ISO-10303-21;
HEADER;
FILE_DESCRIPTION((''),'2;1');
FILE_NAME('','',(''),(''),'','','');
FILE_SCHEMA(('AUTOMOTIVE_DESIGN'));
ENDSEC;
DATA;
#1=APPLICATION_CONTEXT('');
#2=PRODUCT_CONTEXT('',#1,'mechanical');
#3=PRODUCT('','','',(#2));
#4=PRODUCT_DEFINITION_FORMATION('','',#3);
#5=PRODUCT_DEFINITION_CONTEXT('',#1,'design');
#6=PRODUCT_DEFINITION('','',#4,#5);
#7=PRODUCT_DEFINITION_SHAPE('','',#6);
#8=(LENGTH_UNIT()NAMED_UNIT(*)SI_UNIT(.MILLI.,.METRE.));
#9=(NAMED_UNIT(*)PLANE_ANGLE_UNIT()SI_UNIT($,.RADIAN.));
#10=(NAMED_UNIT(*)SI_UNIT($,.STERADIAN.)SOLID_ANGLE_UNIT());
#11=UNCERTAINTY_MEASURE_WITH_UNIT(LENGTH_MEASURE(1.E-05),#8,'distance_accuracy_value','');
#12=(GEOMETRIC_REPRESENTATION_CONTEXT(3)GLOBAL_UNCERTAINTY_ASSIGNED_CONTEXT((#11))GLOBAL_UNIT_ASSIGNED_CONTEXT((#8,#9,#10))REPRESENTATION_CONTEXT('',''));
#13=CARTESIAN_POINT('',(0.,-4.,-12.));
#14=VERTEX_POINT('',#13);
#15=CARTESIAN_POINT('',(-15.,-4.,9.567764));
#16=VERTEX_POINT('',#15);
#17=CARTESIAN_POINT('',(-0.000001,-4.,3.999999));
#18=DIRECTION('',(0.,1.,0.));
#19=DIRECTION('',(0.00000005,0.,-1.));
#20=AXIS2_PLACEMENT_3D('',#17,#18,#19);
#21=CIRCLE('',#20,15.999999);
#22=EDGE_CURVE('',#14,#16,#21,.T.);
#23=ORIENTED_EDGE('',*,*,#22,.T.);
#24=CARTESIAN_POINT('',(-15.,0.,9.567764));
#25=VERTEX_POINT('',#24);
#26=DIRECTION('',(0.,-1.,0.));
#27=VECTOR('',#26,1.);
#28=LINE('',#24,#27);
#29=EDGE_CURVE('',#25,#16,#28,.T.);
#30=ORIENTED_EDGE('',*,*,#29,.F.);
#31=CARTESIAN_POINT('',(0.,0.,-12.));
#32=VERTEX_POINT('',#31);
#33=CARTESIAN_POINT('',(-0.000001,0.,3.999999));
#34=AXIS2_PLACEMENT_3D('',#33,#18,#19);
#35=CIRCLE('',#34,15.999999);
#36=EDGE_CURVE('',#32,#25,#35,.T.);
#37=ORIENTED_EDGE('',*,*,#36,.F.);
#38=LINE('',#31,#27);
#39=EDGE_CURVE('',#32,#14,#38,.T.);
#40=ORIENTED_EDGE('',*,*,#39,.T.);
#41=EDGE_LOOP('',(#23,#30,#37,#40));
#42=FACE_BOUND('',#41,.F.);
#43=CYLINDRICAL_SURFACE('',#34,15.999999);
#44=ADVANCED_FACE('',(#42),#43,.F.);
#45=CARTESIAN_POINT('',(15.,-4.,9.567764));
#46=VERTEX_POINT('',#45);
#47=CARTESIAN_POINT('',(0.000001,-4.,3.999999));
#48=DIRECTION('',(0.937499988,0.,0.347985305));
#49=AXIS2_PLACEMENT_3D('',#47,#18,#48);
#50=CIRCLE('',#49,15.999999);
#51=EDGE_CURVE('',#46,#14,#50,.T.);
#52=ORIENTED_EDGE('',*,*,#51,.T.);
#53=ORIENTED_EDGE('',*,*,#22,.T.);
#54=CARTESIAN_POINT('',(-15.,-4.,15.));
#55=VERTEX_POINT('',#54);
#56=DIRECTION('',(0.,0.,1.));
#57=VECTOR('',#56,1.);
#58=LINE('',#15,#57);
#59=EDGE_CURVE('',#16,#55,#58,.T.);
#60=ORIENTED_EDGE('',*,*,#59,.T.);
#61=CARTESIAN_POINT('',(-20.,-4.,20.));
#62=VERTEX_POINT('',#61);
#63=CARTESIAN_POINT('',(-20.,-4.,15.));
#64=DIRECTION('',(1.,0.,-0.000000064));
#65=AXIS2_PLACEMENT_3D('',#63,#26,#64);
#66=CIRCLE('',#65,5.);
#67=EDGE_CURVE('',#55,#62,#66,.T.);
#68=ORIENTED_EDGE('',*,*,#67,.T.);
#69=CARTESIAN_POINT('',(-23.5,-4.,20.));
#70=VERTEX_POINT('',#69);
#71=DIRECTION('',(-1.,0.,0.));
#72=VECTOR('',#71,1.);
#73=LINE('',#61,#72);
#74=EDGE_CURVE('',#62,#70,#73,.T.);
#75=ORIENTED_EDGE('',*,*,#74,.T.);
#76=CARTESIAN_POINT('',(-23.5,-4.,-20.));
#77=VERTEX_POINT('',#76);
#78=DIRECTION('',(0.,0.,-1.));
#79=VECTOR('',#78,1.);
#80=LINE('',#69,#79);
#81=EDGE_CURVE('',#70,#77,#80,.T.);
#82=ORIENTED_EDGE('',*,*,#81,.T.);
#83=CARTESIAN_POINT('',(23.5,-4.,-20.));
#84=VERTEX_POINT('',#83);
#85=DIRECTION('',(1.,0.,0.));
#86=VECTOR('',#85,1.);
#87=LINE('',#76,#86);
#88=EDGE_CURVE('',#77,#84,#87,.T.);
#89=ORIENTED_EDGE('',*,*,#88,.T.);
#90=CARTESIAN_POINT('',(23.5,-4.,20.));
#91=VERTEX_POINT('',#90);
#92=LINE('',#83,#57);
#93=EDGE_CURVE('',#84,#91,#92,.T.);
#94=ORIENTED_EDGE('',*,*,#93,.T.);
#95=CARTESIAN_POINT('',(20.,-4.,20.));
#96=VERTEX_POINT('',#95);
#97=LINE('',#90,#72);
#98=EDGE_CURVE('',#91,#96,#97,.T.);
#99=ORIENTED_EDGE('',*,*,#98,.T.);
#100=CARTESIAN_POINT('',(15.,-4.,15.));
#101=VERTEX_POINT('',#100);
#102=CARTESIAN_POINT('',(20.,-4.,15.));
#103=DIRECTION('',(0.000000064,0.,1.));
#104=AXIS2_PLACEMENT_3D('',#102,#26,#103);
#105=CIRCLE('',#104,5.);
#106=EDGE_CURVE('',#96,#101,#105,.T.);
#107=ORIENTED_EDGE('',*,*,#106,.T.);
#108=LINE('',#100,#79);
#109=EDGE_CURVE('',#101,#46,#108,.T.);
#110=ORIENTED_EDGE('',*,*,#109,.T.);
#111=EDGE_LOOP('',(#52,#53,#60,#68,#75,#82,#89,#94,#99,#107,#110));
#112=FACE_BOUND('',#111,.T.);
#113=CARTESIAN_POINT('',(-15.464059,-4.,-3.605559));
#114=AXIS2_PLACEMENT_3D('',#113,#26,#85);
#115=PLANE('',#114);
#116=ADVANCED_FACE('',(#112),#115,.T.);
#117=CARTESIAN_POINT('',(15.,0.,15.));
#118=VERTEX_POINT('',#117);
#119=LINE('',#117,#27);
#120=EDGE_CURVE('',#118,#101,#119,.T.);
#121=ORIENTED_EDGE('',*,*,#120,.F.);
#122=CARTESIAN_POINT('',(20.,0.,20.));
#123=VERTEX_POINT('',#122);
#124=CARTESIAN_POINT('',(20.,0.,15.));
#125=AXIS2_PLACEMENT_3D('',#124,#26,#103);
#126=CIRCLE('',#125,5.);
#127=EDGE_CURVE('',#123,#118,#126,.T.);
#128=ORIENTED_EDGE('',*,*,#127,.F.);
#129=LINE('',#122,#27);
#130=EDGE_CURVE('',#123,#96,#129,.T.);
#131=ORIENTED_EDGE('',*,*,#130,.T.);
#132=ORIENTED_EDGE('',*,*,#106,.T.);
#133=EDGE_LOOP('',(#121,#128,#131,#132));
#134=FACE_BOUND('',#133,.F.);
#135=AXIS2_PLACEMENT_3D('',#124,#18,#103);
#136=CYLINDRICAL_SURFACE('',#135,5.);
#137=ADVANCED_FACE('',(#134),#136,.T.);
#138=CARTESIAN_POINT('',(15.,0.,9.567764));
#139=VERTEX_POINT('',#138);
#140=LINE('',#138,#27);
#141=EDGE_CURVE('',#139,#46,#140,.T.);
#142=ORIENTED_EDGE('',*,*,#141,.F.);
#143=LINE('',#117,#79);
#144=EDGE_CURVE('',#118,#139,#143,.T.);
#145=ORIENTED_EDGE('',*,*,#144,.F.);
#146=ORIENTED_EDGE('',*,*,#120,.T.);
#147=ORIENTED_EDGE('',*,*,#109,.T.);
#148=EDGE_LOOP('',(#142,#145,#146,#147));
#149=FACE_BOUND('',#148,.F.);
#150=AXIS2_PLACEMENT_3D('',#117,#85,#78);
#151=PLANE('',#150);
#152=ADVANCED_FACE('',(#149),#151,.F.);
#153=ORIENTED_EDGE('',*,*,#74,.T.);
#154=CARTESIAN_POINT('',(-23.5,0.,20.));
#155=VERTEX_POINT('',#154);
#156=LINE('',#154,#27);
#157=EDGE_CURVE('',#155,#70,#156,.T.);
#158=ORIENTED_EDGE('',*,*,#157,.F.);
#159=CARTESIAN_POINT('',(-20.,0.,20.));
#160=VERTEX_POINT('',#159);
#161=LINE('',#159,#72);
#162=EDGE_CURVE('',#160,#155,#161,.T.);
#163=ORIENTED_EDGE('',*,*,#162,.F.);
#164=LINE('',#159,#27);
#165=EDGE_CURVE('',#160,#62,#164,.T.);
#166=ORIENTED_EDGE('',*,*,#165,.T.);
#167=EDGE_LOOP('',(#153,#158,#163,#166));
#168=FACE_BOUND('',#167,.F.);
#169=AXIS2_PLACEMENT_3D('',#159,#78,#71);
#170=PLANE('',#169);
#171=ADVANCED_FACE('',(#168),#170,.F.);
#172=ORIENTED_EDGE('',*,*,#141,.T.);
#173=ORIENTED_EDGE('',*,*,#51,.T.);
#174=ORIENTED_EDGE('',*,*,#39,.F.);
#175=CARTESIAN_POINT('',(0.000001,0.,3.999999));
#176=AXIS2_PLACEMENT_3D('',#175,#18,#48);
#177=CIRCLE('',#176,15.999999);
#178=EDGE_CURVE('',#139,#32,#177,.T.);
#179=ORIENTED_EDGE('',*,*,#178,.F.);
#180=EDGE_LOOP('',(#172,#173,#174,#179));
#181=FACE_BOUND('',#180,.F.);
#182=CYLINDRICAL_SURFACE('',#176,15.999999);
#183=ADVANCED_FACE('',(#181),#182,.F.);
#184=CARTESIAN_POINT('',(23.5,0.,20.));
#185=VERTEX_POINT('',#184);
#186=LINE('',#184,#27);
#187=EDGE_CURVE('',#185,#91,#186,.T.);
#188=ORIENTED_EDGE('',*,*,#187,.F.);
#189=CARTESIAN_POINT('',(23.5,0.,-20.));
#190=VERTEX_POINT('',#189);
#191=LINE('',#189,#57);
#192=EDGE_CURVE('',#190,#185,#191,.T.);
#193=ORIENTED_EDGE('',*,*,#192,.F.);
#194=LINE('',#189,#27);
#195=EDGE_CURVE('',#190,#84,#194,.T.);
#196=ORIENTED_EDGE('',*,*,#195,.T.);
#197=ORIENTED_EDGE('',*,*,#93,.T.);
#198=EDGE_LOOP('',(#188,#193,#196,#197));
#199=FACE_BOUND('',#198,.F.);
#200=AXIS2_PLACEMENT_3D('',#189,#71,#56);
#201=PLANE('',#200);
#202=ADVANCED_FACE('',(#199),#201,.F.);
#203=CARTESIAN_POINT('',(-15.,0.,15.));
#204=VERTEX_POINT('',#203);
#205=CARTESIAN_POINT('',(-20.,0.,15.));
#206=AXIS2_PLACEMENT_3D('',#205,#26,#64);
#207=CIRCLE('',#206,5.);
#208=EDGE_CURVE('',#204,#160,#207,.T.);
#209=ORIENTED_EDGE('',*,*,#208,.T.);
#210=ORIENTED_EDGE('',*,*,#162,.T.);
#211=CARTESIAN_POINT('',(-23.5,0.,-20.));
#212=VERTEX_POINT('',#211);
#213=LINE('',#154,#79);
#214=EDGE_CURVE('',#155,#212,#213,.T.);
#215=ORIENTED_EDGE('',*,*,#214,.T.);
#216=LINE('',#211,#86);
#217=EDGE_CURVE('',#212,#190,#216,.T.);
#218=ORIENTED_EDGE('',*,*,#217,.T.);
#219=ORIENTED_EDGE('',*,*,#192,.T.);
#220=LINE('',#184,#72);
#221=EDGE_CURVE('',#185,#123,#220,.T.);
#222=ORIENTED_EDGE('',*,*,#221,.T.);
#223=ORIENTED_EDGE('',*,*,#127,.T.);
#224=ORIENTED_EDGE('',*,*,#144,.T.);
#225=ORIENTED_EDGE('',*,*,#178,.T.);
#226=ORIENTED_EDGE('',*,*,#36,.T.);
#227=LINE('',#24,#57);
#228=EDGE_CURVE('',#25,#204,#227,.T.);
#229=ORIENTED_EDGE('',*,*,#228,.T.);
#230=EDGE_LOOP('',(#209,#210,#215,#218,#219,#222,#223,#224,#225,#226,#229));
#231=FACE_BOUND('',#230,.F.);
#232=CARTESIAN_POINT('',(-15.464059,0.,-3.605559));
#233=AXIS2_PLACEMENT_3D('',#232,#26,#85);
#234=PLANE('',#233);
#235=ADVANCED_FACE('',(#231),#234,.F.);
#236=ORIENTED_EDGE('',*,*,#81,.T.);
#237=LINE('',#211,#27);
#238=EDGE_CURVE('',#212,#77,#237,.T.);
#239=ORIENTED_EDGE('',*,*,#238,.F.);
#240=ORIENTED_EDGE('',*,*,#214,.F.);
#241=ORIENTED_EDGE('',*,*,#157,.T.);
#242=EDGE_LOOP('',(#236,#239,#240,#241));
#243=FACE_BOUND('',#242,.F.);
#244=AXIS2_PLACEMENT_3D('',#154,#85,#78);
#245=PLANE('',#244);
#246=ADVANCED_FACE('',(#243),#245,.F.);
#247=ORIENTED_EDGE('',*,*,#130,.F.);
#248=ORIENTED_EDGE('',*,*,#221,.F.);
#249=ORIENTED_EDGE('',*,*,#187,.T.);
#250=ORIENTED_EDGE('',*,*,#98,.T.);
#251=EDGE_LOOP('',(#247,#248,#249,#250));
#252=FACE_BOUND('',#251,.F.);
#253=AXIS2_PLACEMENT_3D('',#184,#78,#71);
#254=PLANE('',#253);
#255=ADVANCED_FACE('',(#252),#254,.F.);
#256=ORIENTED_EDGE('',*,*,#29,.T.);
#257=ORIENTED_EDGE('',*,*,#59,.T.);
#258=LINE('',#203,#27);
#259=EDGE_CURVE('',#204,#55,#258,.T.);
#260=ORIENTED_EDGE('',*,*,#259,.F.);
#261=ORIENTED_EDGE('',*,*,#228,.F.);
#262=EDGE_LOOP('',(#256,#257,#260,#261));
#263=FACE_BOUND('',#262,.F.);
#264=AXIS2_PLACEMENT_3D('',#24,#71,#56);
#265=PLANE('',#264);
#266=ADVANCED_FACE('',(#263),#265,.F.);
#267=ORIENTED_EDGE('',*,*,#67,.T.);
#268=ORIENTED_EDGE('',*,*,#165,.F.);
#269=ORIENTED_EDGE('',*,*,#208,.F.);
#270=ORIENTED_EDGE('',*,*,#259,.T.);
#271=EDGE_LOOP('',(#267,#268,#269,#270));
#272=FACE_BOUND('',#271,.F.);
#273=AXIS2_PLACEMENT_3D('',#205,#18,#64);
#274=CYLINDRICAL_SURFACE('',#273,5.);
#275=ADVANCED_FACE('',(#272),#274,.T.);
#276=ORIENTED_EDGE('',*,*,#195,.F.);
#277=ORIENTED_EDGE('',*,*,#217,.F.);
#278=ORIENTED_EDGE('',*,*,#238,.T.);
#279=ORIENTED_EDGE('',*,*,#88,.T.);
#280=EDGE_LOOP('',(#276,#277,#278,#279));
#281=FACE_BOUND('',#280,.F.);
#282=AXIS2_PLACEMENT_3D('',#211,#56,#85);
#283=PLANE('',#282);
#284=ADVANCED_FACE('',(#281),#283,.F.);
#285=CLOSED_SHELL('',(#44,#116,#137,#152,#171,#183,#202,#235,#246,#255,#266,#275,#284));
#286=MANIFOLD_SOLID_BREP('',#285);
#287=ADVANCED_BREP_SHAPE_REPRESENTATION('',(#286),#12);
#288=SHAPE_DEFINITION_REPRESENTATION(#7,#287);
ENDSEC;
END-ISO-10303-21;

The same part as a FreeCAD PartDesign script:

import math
import FreeCAD as App
import Part
import Sketcher

V = App.Vector

doc = App.newDocument("Part")
body = doc.addObject("PartDesign::Body", "Body")

sketch1 = body.newObject("Sketcher::SketchObject", "Sketch")
sketch1.AttachmentSupport = (doc.getObject("XZ_Plane"), [""])
sketch1.MapMode = "FlatFace"
sketch1.addGeometry([
    Part.ArcOfCircle(Part.Circle(V(-20, 15, 0), V(0, 0, 1), 5), math.radians(0), math.radians(90)),
    Part.LineSegment(V(-20, 20, 0), V(-23.5, 20, 0)),
    Part.LineSegment(V(-23.5, 20, 0), V(-23.5, -20, 0)),
    Part.LineSegment(V(-23.5, -20, 0), V(23.5, -20, 0)),
    Part.LineSegment(V(23.5, -20, 0), V(23.5, 20, 0)),
    Part.LineSegment(V(23.5, 20, 0), V(20, 20, 0)),
    Part.ArcOfCircle(Part.Circle(V(20, 15, 0), V(0, 0, 1), 5), math.radians(90), math.radians(180)),
    Part.LineSegment(V(15, 15, 0), V(15, 9.6, 0)),
    Part.ArcOfCircle(Part.Circle(V(0, 4, 0), V(0, 0, 1), 16), math.radians(-90), math.radians(20)),
    Part.ArcOfCircle(Part.Circle(V(0, 4, 0), V(0, 0, 1), 16), math.radians(160), math.radians(270)),
    Part.LineSegment(V(-15, 9.6, 0), V(-15, 15, 0)),
], False)
sketch1.addConstraint([
    Sketcher.Constraint("Tangent", 0, 2, 1, 1),
    Sketcher.Constraint("Coincident", 1, 2, 2, 1),
    Sketcher.Constraint("Coincident", 2, 2, 3, 1),
    Sketcher.Constraint("Coincident", 3, 2, 4, 1),
    Sketcher.Constraint("Coincident", 4, 2, 5, 1),
    Sketcher.Constraint("Tangent", 5, 2, 6, 1),
    Sketcher.Constraint("Tangent", 6, 2, 7, 1),
    Sketcher.Constraint("Coincident", 7, 2, 8, 2),
    Sketcher.Constraint("Tangent", 8, 1, 9, 2),
    Sketcher.Constraint("Coincident", 9, 1, 10, 1),
    Sketcher.Constraint("Tangent", 10, 2, 0, 1),
    Sketcher.Constraint("Horizontal", 1),
    Sketcher.Constraint("Vertical", 2),
    Sketcher.Constraint("Horizontal", 3),
    Sketcher.Constraint("Vertical", 4),
    Sketcher.Constraint("Horizontal", 5),
    Sketcher.Constraint("Vertical", 7),
    Sketcher.Constraint("Vertical", 10),
    Sketcher.Constraint("Equal", 0, 6),
    Sketcher.Constraint("Equal", 8, 9),
    Sketcher.Constraint("Symmetric", 1, 2, 3, 2, -1, 1),
    Sketcher.Constraint("Symmetric", 0, 3, 6, 3, -2),
    Sketcher.Constraint("PointOnObject", 8, 3, -2),
    Sketcher.Constraint("PointOnObject", 8, 1, -2),
    Sketcher.Constraint("Radius", 0, 5.0),
    Sketcher.Constraint("Radius", 8, 15.999999),
    Sketcher.Constraint("DistanceX", 3, 1, 3, 2, 47.0),
    Sketcher.Constraint("DistanceY", 2, 2, 2, 1, 40.0),
    Sketcher.Constraint("DistanceX", 1, 2, 1, 1, 3.5),
    Sketcher.Constraint("DistanceY", -1, 1, 8, 3, 3.999999),
])
pad1 = body.newObject("PartDesign::Pad", "Pad")
pad1.Profile = sketch1
pad1.Length = 4

doc.recompute()
